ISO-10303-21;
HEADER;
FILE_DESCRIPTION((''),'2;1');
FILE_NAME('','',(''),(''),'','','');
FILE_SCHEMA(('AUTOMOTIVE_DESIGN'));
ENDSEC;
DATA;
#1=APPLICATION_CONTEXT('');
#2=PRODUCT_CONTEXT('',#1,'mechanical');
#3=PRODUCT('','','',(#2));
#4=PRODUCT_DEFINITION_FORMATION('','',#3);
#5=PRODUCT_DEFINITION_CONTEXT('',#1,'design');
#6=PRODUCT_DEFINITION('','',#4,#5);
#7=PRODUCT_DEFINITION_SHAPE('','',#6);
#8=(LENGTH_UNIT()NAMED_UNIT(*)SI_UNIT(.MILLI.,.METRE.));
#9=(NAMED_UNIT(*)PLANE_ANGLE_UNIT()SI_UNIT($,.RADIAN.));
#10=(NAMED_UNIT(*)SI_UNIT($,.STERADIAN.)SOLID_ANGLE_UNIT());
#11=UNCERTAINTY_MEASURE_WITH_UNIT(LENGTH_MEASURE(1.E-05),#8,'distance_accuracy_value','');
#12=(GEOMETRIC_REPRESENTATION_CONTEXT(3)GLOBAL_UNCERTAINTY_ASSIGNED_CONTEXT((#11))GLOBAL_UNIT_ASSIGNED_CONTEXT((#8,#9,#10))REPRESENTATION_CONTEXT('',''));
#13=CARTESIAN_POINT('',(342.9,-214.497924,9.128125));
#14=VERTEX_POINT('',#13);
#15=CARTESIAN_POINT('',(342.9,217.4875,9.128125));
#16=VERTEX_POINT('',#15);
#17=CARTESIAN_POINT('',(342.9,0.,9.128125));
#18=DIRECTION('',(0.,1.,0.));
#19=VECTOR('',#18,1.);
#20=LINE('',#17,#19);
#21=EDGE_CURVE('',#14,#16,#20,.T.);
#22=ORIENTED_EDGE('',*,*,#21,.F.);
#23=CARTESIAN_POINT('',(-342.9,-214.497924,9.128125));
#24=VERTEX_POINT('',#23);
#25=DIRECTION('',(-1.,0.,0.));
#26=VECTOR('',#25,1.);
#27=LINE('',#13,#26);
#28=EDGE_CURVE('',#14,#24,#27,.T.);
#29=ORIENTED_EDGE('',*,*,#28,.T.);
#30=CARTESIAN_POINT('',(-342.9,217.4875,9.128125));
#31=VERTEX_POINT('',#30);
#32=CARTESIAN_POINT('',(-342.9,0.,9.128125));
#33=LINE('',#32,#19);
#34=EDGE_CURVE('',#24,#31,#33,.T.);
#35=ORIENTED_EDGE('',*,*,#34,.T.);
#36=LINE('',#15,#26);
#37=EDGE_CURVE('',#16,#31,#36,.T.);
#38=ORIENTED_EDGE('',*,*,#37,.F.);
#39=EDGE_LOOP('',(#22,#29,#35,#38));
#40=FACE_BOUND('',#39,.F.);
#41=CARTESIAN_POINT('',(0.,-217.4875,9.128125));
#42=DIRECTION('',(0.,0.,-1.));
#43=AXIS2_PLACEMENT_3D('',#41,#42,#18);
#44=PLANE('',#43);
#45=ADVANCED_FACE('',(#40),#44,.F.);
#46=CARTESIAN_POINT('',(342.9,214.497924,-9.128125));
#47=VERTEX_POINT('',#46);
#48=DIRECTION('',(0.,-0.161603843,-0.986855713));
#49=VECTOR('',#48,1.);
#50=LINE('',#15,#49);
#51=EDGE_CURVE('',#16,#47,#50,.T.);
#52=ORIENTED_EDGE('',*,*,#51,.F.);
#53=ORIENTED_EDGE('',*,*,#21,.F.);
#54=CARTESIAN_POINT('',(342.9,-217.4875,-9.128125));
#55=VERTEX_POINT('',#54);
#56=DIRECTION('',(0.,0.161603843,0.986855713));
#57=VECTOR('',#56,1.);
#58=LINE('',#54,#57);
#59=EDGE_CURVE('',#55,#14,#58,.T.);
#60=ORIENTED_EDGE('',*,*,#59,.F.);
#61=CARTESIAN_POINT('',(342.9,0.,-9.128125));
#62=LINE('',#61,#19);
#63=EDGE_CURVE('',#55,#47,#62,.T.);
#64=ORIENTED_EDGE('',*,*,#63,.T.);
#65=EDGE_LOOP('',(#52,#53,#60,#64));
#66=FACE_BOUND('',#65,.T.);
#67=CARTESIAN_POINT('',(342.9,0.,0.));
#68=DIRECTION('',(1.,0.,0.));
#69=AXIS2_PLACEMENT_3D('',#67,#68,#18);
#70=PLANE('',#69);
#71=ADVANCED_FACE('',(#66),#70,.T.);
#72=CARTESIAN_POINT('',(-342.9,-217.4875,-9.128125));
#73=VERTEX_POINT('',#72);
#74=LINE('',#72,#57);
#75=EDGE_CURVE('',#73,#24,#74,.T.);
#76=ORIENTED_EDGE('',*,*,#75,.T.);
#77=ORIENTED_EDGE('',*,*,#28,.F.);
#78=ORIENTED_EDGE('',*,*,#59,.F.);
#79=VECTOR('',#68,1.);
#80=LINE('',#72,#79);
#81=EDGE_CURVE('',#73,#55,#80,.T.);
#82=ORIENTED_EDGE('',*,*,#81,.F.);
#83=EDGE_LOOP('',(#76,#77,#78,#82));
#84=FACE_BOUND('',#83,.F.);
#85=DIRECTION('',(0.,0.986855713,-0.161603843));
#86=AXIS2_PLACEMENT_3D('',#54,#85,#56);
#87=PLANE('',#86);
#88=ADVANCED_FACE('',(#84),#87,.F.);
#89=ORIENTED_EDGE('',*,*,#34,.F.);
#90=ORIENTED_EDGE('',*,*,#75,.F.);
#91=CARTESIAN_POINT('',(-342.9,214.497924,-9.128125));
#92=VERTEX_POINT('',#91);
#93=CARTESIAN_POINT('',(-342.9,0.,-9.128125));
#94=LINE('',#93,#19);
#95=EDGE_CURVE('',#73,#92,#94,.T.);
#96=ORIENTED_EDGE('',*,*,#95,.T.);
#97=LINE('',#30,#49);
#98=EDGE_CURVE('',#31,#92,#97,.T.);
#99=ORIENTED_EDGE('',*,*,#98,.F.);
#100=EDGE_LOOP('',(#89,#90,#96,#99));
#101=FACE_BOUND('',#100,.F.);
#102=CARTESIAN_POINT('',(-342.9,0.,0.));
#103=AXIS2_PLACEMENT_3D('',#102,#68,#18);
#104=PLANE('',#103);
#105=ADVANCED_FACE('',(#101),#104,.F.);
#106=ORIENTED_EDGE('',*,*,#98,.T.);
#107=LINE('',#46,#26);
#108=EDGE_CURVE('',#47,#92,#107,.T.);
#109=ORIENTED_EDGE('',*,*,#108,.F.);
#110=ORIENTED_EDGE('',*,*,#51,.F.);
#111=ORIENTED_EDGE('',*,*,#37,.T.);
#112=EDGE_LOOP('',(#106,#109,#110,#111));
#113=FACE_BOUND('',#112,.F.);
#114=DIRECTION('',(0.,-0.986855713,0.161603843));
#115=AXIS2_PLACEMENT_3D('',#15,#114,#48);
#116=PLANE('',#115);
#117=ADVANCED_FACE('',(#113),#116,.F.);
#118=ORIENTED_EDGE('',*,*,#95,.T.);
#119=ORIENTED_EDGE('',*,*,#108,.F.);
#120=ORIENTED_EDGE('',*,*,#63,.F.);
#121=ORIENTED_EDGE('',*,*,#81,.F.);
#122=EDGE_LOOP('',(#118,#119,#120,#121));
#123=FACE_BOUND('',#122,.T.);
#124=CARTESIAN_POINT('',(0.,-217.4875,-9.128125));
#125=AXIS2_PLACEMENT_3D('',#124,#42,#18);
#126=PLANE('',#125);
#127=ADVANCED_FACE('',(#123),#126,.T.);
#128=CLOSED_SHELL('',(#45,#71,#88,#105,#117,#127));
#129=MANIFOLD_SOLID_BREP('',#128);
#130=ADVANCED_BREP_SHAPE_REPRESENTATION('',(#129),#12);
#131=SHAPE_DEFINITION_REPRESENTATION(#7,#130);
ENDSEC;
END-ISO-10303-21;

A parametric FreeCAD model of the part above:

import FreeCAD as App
import Part
import Sketcher
Q = App.Units.Quantity

doc = App.newDocument("Part")
body = doc.addObject("PartDesign::Body", "Body")

sketch1 = body.newObject("Sketcher::SketchObject", "Sketch")
sketch1.AttachmentSupport = (doc.getObject("YZ_Plane"), [""])
sketch1.MapMode = "FlatFace"
sketch1.addGeometry([
    Part.LineSegment(App.Vector(-217, 9, 0), App.Vector(-217, -9, 0)),
    Part.LineSegment(App.Vector(-217, -9, 0), App.Vector(217, -9, 0)),
    Part.LineSegment(App.Vector(217, -9, 0), App.Vector(217, 9, 0)),
    Part.LineSegment(App.Vector(217, 9, 0), App.Vector(-217, 9, 0)),
], False)
sketch1.addConstraint([
    Sketcher.Constraint("Coincident", 0, 2, 1, 1),
    Sketcher.Constraint("Coincident", 1, 2, 2, 1),
    Sketcher.Constraint("Coincident", 2, 2, 3, 1),
    Sketcher.Constraint("Coincident", 3, 2, 0, 1),
    Sketcher.Constraint("Vertical", 0),
    Sketcher.Constraint("Horizontal", 1),
    Sketcher.Constraint("Vertical", 2),
    Sketcher.Constraint("Horizontal", 3),
    Sketcher.Constraint("Symmetric", 0, 2, 2, 2, -1, 1),
    Sketcher.Constraint("DistanceX", 1, 1, 1, 2, Q("17.125 in")),
    Sketcher.Constraint("DistanceY", 0, 2, 0, 1, Q("0.71875 in")),
])
pad1 = body.newObject("PartDesign::Pad", "Pad")
pad1.Profile = sketch1
pad1.Length = Q("27 in")
pad1.Midplane = True

sketch2 = body.newObject("Sketcher::SketchObject", "Sketch001")
sketch2.AttachmentSupport = (doc.getObject("YZ_Plane"), [""])
sketch2.MapMode = "FlatFace"
sketch2.AttachmentOffset = App.Placement(App.Vector(0, 0, 13.5 * 25.4), App.Rotation())
sketch2.addGeometry([
    Part.LineSegment(App.Vector(217.5, -9.1, 0), App.Vector(217.5, 9.1, 0)),
    Part.LineSegment(App.Vector(217.5, 9.1, 0), App.Vector(214.5, -9.1, 0)),
    Part.LineSegment(App.Vector(214.5, -9.1, 0), App.Vector(217.5, -9.1, 0)),
    Part.LineSegment(App.Vector(-214.5, 9.1, 0), App.Vector(-217.5, 9.1, 0)),
    Part.LineSegment(App.Vector(-217.5, 9.1, 0), App.Vector(-217.5, -9.1, 0)),
    Part.LineSegment(App.Vector(-217.5, -9.1, 0), App.Vector(-214.5, 9.1, 0)),
], False)
sketch2.addConstraint([
    Sketcher.Constraint("Coincident", 0, 2, 1, 1),
    Sketcher.Constraint("Coincident", 1, 2, 2, 1),
    Sketcher.Constraint("Coincident", 2, 2, 0, 1),
    Sketcher.Constraint("Coincident", 3, 2, 4, 1),
    Sketcher.Constraint("Coincident", 4, 2, 5, 1),
    Sketcher.Constraint("Coincident", 5, 2, 3, 1),
    Sketcher.Constraint("Vertical", 0),
    Sketcher.Constraint("Horizontal", 2),
    Sketcher.Constraint("Horizontal", 3),
    Sketcher.Constraint("Vertical", 4),
    Sketcher.Constraint("Symmetric", 2, 2, 3, 2, -1, 1),
    Sketcher.Constraint("Parallel", 1, 5),
    Sketcher.Constraint("Horizontal", 0, 2, 3, 2),
    Sketcher.Constraint("Horizontal", 2, 2, 4, 2),
    Sketcher.Constraint("Angle", 1, Q("-99.300001 deg")),
    Sketcher.Constraint("DistanceY", 0, 1, 0, 2, Q("0.71875 in")),
    Sketcher.Constraint("DistanceX", -1, 1, 0, 2, Q("8.5625 in")),
])
pocket1 = body.newObject("PartDesign::Pocket", "Pocket")
pocket1.Profile = sketch2
pocket1.Type = "ThroughAll"

doc.recompute()
